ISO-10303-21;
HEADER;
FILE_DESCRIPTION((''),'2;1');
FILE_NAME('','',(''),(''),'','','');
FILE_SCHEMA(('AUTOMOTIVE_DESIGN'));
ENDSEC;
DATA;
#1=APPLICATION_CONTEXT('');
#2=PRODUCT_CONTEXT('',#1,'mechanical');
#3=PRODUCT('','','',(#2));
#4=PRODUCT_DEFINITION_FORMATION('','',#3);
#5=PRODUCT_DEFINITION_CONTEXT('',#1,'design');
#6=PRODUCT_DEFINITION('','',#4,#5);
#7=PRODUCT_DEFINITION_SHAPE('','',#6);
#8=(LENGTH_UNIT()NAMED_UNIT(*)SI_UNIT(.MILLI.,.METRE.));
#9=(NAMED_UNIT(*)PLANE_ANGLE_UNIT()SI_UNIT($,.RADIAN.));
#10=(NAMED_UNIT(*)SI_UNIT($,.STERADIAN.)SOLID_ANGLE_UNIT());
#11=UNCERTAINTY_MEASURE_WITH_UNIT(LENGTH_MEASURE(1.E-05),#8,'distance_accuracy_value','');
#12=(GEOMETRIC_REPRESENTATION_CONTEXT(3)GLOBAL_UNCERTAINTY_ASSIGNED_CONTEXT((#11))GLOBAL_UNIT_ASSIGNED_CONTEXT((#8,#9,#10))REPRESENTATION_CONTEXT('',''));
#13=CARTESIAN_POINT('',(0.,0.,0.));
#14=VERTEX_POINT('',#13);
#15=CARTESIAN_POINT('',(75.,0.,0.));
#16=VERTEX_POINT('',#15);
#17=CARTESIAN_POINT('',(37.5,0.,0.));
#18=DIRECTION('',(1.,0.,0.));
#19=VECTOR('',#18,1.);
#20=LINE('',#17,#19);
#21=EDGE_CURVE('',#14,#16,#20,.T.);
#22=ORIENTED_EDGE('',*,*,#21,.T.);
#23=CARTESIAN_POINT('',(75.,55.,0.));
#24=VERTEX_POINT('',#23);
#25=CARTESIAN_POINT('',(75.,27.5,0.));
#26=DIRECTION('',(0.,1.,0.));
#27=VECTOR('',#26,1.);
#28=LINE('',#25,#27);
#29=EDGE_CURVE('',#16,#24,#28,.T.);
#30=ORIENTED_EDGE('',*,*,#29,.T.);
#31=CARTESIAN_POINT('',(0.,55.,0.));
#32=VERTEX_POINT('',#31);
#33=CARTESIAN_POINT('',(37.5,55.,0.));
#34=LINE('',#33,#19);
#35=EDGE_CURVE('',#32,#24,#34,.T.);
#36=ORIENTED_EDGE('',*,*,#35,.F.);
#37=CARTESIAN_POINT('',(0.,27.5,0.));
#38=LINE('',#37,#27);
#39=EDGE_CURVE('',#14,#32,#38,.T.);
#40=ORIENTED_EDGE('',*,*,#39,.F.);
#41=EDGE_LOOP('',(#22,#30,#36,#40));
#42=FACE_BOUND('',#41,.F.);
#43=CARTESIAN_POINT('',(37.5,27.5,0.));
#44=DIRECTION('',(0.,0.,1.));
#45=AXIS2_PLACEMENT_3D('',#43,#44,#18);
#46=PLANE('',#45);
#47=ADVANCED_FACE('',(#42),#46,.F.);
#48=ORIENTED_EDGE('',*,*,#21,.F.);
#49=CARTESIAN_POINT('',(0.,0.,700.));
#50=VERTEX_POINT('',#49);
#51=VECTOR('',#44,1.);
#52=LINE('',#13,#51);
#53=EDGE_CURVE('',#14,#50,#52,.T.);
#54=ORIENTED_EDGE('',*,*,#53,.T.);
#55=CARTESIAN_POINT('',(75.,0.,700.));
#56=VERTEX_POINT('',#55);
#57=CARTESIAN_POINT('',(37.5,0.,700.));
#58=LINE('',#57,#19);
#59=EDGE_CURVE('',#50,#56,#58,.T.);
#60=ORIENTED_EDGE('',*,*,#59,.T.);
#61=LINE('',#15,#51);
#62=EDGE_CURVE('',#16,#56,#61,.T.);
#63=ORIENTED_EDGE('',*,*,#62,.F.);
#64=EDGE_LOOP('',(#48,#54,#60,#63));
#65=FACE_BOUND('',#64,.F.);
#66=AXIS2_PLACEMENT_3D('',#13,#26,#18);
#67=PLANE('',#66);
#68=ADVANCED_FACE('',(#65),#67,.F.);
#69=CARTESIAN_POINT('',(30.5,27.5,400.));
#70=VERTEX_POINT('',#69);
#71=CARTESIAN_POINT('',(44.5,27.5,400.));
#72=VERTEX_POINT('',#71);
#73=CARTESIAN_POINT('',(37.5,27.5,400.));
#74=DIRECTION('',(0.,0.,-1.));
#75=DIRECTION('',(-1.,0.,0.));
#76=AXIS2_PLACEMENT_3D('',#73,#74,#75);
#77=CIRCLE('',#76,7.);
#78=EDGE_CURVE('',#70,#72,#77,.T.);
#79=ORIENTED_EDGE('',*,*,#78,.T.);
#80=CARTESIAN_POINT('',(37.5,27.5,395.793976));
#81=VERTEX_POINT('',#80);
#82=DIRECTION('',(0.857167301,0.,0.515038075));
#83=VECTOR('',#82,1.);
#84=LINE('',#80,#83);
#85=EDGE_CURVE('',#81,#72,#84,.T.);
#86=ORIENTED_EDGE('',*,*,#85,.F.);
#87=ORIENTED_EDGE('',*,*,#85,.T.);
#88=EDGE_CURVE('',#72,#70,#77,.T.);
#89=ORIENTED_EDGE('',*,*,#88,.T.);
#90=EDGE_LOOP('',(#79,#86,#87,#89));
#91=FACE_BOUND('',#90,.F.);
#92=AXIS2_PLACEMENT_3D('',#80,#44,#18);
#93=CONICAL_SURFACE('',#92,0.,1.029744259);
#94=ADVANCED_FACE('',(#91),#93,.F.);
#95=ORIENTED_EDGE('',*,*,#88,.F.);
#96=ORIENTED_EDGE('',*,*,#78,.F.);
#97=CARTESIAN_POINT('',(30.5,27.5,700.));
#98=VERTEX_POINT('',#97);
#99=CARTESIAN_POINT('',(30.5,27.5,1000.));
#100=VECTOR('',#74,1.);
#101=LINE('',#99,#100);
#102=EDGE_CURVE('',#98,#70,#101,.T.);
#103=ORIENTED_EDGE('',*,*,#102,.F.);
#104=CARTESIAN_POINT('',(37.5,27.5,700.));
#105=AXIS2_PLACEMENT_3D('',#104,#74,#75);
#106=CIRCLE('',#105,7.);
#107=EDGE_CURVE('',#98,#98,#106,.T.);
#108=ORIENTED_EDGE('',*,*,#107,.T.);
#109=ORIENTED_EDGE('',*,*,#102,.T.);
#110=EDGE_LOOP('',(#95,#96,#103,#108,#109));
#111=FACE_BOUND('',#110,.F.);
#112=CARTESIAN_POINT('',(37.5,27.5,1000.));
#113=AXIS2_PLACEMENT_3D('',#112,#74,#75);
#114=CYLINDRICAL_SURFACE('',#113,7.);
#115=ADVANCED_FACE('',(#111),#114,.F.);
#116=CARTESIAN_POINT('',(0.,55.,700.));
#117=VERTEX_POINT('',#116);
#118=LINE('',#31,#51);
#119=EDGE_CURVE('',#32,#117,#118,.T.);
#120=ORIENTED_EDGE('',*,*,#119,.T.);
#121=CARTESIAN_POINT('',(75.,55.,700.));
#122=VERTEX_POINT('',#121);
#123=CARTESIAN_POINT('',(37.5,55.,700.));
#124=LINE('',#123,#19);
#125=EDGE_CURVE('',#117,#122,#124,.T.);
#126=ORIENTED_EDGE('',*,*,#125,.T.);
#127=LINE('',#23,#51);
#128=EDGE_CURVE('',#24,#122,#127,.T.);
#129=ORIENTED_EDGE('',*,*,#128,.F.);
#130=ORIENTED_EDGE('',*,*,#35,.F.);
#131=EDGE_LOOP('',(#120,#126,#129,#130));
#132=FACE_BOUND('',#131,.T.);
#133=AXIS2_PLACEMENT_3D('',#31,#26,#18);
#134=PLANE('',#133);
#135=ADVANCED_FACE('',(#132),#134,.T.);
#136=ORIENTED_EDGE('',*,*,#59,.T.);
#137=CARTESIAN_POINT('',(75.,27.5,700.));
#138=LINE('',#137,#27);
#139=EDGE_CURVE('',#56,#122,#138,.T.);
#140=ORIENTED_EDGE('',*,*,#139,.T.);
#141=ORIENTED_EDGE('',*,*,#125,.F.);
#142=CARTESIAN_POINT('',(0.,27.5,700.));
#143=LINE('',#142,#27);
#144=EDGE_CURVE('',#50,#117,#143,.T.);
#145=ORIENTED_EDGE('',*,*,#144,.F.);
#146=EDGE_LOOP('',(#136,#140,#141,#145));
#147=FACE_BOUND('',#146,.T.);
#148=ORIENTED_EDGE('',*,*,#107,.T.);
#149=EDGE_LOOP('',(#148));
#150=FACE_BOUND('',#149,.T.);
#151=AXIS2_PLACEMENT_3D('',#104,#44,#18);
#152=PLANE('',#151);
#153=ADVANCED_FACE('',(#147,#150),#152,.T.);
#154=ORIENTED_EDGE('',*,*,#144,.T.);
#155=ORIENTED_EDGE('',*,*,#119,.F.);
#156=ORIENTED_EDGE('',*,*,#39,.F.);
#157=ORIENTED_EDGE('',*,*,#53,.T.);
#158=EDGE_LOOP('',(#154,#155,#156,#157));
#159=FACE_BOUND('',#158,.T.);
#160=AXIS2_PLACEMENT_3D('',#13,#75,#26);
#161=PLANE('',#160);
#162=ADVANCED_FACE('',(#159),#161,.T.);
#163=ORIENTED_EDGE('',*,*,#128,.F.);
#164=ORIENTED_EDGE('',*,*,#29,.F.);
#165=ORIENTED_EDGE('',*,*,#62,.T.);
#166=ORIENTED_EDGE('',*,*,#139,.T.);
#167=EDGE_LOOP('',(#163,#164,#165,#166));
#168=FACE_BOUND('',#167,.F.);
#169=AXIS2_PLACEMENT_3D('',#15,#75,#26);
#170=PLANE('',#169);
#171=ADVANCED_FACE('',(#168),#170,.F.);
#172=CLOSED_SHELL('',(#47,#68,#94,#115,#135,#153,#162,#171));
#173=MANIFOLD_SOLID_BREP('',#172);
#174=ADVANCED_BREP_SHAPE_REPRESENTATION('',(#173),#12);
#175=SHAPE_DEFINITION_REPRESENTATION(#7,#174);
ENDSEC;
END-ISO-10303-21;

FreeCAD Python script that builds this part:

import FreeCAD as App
import Part
import Sketcher

V = App.Vector
Q = App.Units.Quantity


def add_polygon(sketch, points):
    """Adds a closed chain of lines whose ends are joined by coincident constraints."""
    first, n = sketch.GeometryCount, len(points)
    for a, b in zip(points, points[1:] + points[:1]):
        sketch.addGeometry(Part.LineSegment(App.Vector(*a, 0), App.Vector(*b, 0)), False)
    for i in range(n):
        sketch.addConstraint(Sketcher.Constraint("Coincident", first + i, 2, first + (i + 1) % n, 1))

doc = App.newDocument("Part")
params = doc.addObject("Spreadsheet::Sheet", "Params")
for row, (alias, value) in enumerate([
    ("sketch1_width", "75 mm"),
    ("sketch1_height", "55 mm"),
    ("pad1_length", "700 mm"),
    ("sketch2_diameter", "14 mm"),
    ("hole_diameter", "14 mm"),
    ("hole_depth", "300 mm"),
], start=1):
    params.set(f"A{row}", alias)
    params.set(f"B{row}", "=" + value)
    params.setAlias(f"B{row}", alias)

body = doc.addObject("PartDesign::Body", "Body")

sketch1 = doc.addObject("Sketcher::SketchObject", "Sketch")
body.addObject(sketch1)
sketch1.AttachmentSupport = (doc.XY_Plane, [""])
sketch1.MapMode = "FlatFace"
add_polygon(sketch1, [(0, 55), (0, 0), (75, 0), (75, 55)])
sketch1.addConstraint([
    Sketcher.Constraint("Vertical", 0),
    Sketcher.Constraint("Horizontal", 1),
    Sketcher.Constraint("Vertical", 2),
    Sketcher.Constraint("Horizontal", 3),
    Sketcher.Constraint("Coincident", 0, 2, -1, 1),
    Sketcher.Constraint("DistanceX", 1, 1, 1, 2, Q("75 mm")),
    Sketcher.Constraint("DistanceY", 0, 2, 0, 1, Q("55 mm")),
])
sketch1.setExpression("Constraints[9]", "Params.sketch1_width")
sketch1.setExpression("Constraints[10]", "Params.sketch1_height")
pad1 = doc.addObject("PartDesign::Pad", "Pad")
body.addObject(pad1)
pad1.Profile = sketch1
pad1.setExpression("Length", "Params.pad1_length")

sketch2 = doc.addObject("Sketcher::SketchObject", "Sketch001")
body.addObject(sketch2)
sketch2.AttachmentSupport = (doc.XY_Plane, [""])
sketch2.MapMode = "FlatFace"
sketch2.AttachmentOffset = App.Placement(V(0, 0, 700), App.Rotation())
sketch2.addGeometry(Part.Circle(V(37.5, 27.5, 0), V(0, 0, 1), 7), False)
sketch2.addConstraint([
    Sketcher.Constraint("Diameter", 0, Q("14 mm")),
    Sketcher.Constraint("DistanceX", -1, 1, 0, 3, Q("37.5 mm")),
    Sketcher.Constraint("DistanceY", -1, 1, 0, 3, Q("27.5 mm")),
])
sketch2.setExpression("Constraints[0]", "Params.sketch2_diameter")
doc.recompute()
hole = doc.addObject("PartDesign::Hole", "Hole")
body.addObject(hole)
hole.Profile = sketch2
hole.ThreadType = "None"
hole.setExpression("Diameter", "Params.hole_diameter")
hole.DepthType = "Dimension"
hole.setExpression("Depth", "Params.hole_depth")
hole.DrillPoint = "Angled"
hole.DrillPointAngle = 118

doc.recompute()
